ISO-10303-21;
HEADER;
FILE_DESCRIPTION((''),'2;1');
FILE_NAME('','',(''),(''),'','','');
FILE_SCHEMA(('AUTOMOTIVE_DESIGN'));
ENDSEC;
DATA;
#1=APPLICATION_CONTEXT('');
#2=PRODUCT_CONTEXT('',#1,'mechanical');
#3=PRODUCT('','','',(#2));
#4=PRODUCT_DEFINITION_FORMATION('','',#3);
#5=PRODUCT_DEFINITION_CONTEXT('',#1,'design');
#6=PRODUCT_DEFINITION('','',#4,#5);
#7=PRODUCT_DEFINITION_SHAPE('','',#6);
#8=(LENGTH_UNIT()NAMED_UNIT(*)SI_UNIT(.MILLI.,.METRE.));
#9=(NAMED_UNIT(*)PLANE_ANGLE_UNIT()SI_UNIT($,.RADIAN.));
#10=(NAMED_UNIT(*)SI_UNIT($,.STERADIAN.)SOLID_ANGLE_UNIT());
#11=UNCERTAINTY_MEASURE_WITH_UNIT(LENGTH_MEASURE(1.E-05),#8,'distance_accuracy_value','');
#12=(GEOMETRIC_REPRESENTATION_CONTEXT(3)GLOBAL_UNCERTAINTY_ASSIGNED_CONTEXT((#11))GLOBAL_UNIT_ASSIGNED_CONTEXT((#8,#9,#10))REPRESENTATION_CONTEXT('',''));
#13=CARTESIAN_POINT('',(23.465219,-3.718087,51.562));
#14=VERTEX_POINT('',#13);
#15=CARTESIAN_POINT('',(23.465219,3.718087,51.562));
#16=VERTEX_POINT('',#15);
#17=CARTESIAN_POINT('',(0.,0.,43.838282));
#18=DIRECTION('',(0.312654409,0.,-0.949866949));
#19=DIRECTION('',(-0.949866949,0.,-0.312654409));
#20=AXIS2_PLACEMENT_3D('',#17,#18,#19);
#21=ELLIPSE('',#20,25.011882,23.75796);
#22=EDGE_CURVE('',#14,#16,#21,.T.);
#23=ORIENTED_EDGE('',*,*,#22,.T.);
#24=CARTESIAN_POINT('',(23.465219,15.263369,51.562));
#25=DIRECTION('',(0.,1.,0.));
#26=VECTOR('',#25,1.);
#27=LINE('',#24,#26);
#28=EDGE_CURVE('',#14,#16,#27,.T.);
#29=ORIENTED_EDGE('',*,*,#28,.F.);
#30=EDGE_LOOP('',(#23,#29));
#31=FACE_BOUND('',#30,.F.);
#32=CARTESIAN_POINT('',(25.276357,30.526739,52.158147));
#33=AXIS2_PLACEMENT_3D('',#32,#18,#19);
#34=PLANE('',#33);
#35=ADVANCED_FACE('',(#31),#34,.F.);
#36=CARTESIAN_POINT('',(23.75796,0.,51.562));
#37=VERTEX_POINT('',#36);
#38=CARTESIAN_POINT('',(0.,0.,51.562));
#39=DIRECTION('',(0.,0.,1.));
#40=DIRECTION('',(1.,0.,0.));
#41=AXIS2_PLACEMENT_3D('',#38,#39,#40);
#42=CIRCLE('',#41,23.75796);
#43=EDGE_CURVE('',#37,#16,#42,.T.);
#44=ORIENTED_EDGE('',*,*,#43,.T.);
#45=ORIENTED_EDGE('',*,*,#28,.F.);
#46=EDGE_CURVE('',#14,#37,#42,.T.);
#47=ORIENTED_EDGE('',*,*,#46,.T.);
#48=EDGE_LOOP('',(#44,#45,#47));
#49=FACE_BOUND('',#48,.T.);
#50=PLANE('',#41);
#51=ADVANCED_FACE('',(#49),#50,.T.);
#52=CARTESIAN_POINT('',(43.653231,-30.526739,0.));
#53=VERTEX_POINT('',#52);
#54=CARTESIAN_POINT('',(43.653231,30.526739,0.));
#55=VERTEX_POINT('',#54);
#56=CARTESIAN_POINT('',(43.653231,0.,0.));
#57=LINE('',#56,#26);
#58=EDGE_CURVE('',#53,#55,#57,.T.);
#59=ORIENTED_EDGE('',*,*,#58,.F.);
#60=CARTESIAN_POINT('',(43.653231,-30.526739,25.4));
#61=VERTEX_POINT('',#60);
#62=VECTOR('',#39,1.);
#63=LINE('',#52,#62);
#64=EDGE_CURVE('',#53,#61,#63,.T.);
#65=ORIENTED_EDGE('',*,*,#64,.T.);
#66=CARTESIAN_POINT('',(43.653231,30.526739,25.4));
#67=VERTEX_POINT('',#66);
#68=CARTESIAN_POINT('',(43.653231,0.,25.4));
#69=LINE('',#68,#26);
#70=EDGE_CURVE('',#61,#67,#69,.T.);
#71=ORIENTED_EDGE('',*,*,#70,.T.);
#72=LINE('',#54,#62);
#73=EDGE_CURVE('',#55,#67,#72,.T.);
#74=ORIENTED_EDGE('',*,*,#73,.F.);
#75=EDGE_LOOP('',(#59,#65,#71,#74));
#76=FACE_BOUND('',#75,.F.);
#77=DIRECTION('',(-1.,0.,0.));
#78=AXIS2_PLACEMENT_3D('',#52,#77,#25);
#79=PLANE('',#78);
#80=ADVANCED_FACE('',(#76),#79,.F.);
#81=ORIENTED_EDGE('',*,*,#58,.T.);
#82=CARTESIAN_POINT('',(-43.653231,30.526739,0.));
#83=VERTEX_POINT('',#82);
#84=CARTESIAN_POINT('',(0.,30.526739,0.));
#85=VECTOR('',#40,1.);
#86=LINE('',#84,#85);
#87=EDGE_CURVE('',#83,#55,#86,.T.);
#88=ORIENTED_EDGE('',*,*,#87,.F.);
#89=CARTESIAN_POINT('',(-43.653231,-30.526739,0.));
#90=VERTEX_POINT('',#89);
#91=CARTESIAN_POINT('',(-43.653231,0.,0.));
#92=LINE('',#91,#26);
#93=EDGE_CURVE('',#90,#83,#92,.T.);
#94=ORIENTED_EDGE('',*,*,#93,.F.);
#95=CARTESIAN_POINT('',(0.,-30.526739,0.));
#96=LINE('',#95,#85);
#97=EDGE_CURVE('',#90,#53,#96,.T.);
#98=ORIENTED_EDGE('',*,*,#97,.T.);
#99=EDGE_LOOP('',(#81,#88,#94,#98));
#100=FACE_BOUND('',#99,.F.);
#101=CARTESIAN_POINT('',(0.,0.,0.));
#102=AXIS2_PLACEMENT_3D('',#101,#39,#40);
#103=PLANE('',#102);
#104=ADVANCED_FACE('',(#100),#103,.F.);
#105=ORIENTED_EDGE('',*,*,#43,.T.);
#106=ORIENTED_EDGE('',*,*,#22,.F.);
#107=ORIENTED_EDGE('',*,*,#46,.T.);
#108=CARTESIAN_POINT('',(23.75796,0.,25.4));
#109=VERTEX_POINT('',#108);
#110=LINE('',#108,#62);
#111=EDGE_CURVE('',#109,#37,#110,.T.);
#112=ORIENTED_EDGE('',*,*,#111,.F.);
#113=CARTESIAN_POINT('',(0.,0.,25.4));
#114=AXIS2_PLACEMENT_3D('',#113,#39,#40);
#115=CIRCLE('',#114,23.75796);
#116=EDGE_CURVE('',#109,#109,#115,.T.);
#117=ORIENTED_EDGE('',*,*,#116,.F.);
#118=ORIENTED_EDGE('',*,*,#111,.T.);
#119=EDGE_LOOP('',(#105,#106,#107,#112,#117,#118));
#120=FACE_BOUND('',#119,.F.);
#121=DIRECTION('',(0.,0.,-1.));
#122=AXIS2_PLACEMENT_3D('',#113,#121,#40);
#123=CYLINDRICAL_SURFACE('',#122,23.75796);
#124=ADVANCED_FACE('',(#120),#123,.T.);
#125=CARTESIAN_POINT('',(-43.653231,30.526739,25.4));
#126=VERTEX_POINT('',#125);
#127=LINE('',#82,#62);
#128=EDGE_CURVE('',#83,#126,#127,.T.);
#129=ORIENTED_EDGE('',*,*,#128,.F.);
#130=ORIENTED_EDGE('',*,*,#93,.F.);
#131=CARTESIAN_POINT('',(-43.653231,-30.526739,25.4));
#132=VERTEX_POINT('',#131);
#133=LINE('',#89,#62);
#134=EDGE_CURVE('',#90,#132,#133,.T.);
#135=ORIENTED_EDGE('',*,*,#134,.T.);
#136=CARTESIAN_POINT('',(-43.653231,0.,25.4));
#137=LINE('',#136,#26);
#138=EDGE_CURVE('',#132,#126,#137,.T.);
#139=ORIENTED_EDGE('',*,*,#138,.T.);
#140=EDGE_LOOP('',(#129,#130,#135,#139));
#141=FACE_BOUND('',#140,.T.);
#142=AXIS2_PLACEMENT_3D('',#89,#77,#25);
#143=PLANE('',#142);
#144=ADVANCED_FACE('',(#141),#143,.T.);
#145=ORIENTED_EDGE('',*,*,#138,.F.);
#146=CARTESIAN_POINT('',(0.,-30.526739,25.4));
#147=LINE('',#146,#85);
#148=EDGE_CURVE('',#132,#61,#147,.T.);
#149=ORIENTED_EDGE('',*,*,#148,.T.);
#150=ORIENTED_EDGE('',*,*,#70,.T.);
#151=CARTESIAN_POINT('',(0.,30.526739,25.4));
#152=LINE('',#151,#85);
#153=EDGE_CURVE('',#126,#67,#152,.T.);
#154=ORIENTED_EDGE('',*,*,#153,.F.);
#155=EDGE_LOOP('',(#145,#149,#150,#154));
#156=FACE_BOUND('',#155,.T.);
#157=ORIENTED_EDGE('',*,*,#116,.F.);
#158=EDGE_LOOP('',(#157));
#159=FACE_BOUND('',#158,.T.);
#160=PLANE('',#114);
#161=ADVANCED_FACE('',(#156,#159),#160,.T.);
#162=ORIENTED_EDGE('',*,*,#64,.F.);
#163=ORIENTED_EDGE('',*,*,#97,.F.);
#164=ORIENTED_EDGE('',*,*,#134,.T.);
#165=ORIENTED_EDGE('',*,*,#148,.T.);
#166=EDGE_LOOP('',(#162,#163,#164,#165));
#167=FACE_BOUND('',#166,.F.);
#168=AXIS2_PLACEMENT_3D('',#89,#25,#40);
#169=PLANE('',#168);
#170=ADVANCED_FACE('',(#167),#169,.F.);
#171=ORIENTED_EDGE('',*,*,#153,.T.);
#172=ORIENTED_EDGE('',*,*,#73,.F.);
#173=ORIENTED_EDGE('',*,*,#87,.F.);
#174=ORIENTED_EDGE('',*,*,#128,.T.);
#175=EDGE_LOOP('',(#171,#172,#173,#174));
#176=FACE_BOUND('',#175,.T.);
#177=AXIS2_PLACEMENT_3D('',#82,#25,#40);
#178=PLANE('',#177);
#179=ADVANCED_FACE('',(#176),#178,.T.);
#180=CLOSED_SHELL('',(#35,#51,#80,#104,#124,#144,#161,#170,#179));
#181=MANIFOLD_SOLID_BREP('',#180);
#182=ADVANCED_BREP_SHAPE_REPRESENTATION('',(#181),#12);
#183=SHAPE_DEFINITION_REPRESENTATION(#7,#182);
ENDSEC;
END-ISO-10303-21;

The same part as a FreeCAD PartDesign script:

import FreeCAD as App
import Part
import Sketcher

V = App.Vector
Q = App.Units.Quantity


def add_polygon(sketch, points):
    """Adds a closed chain of lines whose ends are joined by coincident constraints."""
    first, n = sketch.GeometryCount, len(points)
    for a, b in zip(points, points[1:] + points[:1]):
        sketch.addGeometry(Part.LineSegment(App.Vector(*a, 0), App.Vector(*b, 0)), False)
    for i in range(n):
        sketch.addConstraint(Sketcher.Constraint("Coincident", first + i, 2, first + (i + 1) % n, 1))

doc = App.newDocument("Part")
body = doc.addObject("PartDesign::Body", "Body")

# Sketch on XY plane
sketch1 = body.newObject("Sketcher::SketchObject", "Sketch")
sketch1.AttachmentSupport = (doc.getObject("XY_Plane"), [""])
sketch1.MapMode = "FlatFace"
add_polygon(sketch1, [(-43.653231, 30.526739), (-43.653231, -30.526739), (43.653231, -30.526739), (43.653231, 30.526739)])  # lines 0-3
sketch1.addConstraint([
    Sketcher.Constraint("Vertical", 0),
    Sketcher.Constraint("Horizontal", 1),
    Sketcher.Constraint("Vertical", 2),
    Sketcher.Constraint("Horizontal", 3),
    Sketcher.Constraint("Symmetric", 0, 2, 2, 2, -1, 1),
    Sketcher.Constraint("DistanceX", 1, 1, 1, 2, 87.306462),
    Sketcher.Constraint("DistanceY", 0, 2, 0, 1, 61.053478),
])
pad1 = body.newObject("PartDesign::Pad", "Pad")
pad1.Profile = sketch1
pad1.Length = Q("1 in")

# Sketch on XY plane
sketch2 = body.newObject("Sketcher::SketchObject", "Sketch001")
sketch2.AttachmentSupport = (doc.getObject("XY_Plane"), [""])
sketch2.MapMode = "FlatFace"
sketch2.AttachmentOffset = App.Placement(V(0, 0, 1 * 25.4), App.Rotation())
sketch2.addGeometry(Part.Circle(V(0, 0, 0), V(0, 0, 1), 23.75796), False)
sketch2.addConstraint([
    Sketcher.Constraint("Coincident", 0, 3, -1, 1),
    Sketcher.Constraint("Diameter", 0, 47.51592),
])
pad2 = body.newObject("PartDesign::Pad", "Pad001")
pad2.Profile = sketch2
pad2.Length = Q("1.03 in")

# Sketch on XZ plane
sketch3 = body.newObject("Sketcher::SketchObject", "Sketch002")
sketch3.AttachmentSupport = (doc.getObject("XZ_Plane"), [""])
sketch3.MapMode = "FlatFace"
sketch3.AttachmentOffset = App.Placement(V(0, 0, -30.526739), App.Rotation())
add_polygon(sketch3, [(-24.116119, 52.158147), (25.276357, 52.158147), (-24.116119, 35.900317)])  # lines 0-2
sketch3.addConstraint([
    Sketcher.Constraint("Horizontal", 0),
    Sketcher.Constraint("Vertical", 2),
    Sketcher.Constraint("DistanceY", 2, 1, 2, 2, 16.25783),
    Sketcher.Constraint("DistanceX", 0, 1, 0, 2, 49.392476),
    Sketcher.Constraint("DistanceX", 1, 2, -1, 1, 24.116119),
    Sketcher.Constraint("DistanceY", -1, 1, 0, 2, 52.158147),
])
pocket1 = body.newObject("PartDesign::Pocket", "Pocket")
pocket1.Profile = sketch3
pocket1.Type = "ThroughAll"
pocket1.Reversed = True

doc.recompute()
